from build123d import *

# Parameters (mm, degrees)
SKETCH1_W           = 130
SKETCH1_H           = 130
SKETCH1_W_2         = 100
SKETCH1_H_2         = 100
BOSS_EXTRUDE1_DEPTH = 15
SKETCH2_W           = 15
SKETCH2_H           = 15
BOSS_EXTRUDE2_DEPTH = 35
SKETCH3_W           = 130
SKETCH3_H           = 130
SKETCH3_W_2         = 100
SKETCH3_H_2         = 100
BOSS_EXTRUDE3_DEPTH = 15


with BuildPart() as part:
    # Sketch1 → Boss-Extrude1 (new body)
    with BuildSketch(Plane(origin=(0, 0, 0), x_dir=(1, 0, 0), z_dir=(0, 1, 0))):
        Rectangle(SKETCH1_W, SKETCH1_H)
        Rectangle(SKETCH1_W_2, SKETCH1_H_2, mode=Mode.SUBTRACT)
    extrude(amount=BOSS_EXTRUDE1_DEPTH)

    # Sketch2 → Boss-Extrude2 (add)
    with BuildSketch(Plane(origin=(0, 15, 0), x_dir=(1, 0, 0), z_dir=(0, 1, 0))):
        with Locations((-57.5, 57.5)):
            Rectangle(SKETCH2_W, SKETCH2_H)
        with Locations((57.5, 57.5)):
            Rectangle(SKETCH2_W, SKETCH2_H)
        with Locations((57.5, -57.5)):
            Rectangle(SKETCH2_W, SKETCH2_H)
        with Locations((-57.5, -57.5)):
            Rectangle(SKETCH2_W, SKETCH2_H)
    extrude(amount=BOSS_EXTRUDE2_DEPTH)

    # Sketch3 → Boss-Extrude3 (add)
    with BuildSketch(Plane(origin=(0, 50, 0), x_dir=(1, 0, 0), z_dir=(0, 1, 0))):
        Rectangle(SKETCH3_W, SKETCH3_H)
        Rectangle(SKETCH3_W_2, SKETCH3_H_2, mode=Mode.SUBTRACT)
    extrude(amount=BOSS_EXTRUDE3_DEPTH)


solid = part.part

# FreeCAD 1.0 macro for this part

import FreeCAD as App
import Part
import Sketcher

V = App.Vector
Q = App.Units.Quantity

doc = App.newDocument("Part")
body = doc.addObject("PartDesign::Body", "Body")

# Sketch on XZ plane
sketch1 = doc.addObject("Sketcher::SketchObject", "Sketch")
body.addObject(sketch1)
sketch1.AttachmentSupport = (doc.XZ_Plane, [""])
sketch1.MapMode = "FlatFace"
sketch1.addGeometry([
    Part.LineSegment(V(-65, -65, 0), V(-65, 65, 0)),  # 0
    Part.LineSegment(V(-65, 65, 0), V(65, 65, 0)),  # 1
    Part.LineSegment(V(65, 65, 0), V(65, -65, 0)),  # 2
    Part.LineSegment(V(65, -65, 0), V(-65, -65, 0)),  # 3
    Part.LineSegment(V(50, 50, 0), V(-50, 50, 0)),  # 4
    Part.LineSegment(V(-50, 50, 0), V(-50, -50, 0)),  # 5
    Part.LineSegment(V(-50, -50, 0), V(50, -50, 0)),  # 6
    Part.LineSegment(V(50, -50, 0), V(50, 50, 0)),  # 7
], False)
sketch1.addConstraint([
    Sketcher.Constraint("Coincident", 0, 2, 1, 1),
    Sketcher.Constraint("Coincident", 1, 2, 2, 1),
    Sketcher.Constraint("Coincident", 2, 2, 3, 1),
    Sketcher.Constraint("Coincident", 3, 2, 0, 1),
    Sketcher.Constraint("Coincident", 4, 2, 5, 1),
    Sketcher.Constraint("Coincident", 5, 2, 6, 1),
    Sketcher.Constraint("Coincident", 6, 2, 7, 1),
    Sketcher.Constraint("Coincident", 7, 2, 4, 1),
    Sketcher.Constraint("Vertical", 0),
    Sketcher.Constraint("Horizontal", 1),
    Sketcher.Constraint("Vertical", 2),
    Sketcher.Constraint("Horizontal", 3),
    Sketcher.Constraint("Horizontal", 4),
    Sketcher.Constraint("Vertical", 5),
    Sketcher.Constraint("Horizontal", 6),
    Sketcher.Constraint("Vertical", 7),
    Sketcher.Constraint("Symmetric", 0, 2, 2, 2, -1, 1),
    Sketcher.Constraint("Symmetric", 4, 2, 6, 2, -1, 1),
    Sketcher.Constraint("Equal", 3, 0),
    Sketcher.Constraint("Equal", 6, 5),
    Sketcher.Constraint("DistanceX", 1, 1, 1, 2, Q("130 mm")),
    Sketcher.Constraint("DistanceX", 4, 2, 4, 1, Q("100 mm")),
])
pad1 = doc.addObject("PartDesign::Pad", "Pad")
body.addObject(pad1)
pad1.Profile = sketch1
pad1.Length = 15
pad1.Reversed = True

# Sketch on XZ plane
sketch2 = doc.addObject("Sketcher::SketchObject", "Sketch001")
body.addObject(sketch2)
sketch2.AttachmentSupport = (doc.XZ_Plane, [""])
sketch2.MapMode = "FlatFace"
sketch2.AttachmentOffset = App.Placement(V(0, 0, -15), App.Rotation())
sketch2.addGeometry([
    Part.LineSegment(V(-65, -65, 0), V(-65, -50, 0)),  # 0
    Part.LineSegment(V(-65, -50, 0), V(-50, -50, 0)),  # 1
    Part.LineSegment(V(-50, -50, 0), V(-50, -65, 0)),  # 2
    Part.LineSegment(V(-50, -65, 0), V(-65, -65, 0)),  # 3
    Part.LineSegment(V(50, -65, 0), V(50, -50, 0)),  # 4
    Part.LineSegment(V(50, -50, 0), V(65, -50, 0)),  # 5
    Part.LineSegment(V(65, -50, 0), V(65, -65, 0)),  # 6
    Part.LineSegment(V(65, -65, 0), V(50, -65, 0)),  # 7
    Part.LineSegment(V(50, 50, 0), V(50, 65, 0)),  # 8
    Part.LineSegment(V(50, 65, 0), V(65, 65, 0)),  # 9
    Part.LineSegment(V(65, 65, 0), V(65, 50, 0)),  # 10
    Part.LineSegment(V(65, 50, 0), V(50, 50, 0)),  # 11
    Part.LineSegment(V(-65, 50, 0), V(-65, 65, 0)),  # 12
    Part.LineSegment(V(-65, 65, 0), V(-50, 65, 0)),  # 13
    Part.LineSegment(V(-50, 65, 0), V(-50, 50, 0)),  # 14
    Part.LineSegment(V(-50, 50, 0), V(-65, 50, 0)),  # 15
], False)
sketch2.addConstraint([
    Sketcher.Constraint("Coincident", 0, 2, 1, 1),
    Sketcher.Constraint("Coincident", 1, 2, 2, 1),
    Sketcher.Constraint("Coincident", 2, 2, 3, 1),
    Sketcher.Constraint("Coincident", 3, 2, 0, 1),
    Sketcher.Constraint("Coincident", 4, 2, 5, 1),
    Sketcher.Constraint("Coincident", 5, 2, 6, 1),
    Sketcher.Constraint("Coincident", 6, 2, 7, 1),
    Sketcher.Constraint("Coincident", 7, 2, 4, 1),
    Sketcher.Constraint("Coincident", 8, 2, 9, 1),
    Sketcher.Constraint("Coincident", 9, 2, 10, 1),
    Sketcher.Constraint("Coincident", 10, 2, 11, 1),
    Sketcher.Constraint("Coincident", 11, 2, 8, 1),
    Sketcher.Constraint("Coincident", 12, 2, 13, 1),
    Sketcher.Constraint("Coincident", 13, 2, 14, 1),
    Sketcher.Constraint("Coincident", 14, 2, 15, 1),
    Sketcher.Constraint("Coincident", 15, 2, 12, 1),
    Sketcher.Constraint("Vertical", 0),
    Sketcher.Constraint("Horizontal", 1),
    Sketcher.Constraint("Vertical", 2),
    Sketcher.Constraint("Horizontal", 3),
    Sketcher.Constraint("Vertical", 4),
    Sketcher.Constraint("Horizontal", 5),
    Sketcher.Constraint("Vertical", 6),
    Sketcher.Constraint("Horizontal", 7),
    Sketcher.Constraint("Vertical", 8),
    Sketcher.Constraint("Horizontal", 9),
    Sketcher.Constraint("Vertical", 10),
    Sketcher.Constraint("Horizontal", 11),
    Sketcher.Constraint("Vertical", 12),
    Sketcher.Constraint("Horizontal", 13),
    Sketcher.Constraint("Vertical", 14),
    Sketcher.Constraint("Horizontal", 15),
    Sketcher.Constraint("Symmetric", 2, 2, 8, 2, -1, 1),
    Sketcher.Constraint("Symmetric", 0, 2, 10, 2, -1, 1),
    Sketcher.Constraint("Symmetric", 6, 2, 12, 2, -1, 1),
    Sketcher.Constraint("Symmetric", 4, 2, 14, 2, -1, 1),
    Sketcher.Constraint("Symmetric", 1, 2, 4, 2, -2),
    Sketcher.Constraint("Symmetric", 3, 2, 6, 2, -2),
    Sketcher.Constraint("Equal", 15, 0),
    Sketcher.Constraint("DistanceX", 1, 1, 1, 2, Q("15 mm")),
    Sketcher.Constraint("DistanceX", 0, 2, -1, 1, Q("65 mm")),
    Sketcher.Constraint("DistanceY", 0, 2, -1, 1, Q("50 mm")),
])
pad2 = doc.addObject("PartDesign::Pad", "Pad001")
body.addObject(pad2)
pad2.Profile = sketch2
pad2.Length = 35
pad2.Reversed = True

# Sketch on XZ plane
sketch3 = doc.addObject("Sketcher::SketchObject", "Sketch002")
body.addObject(sketch3)
sketch3.AttachmentSupport = (doc.XZ_Plane, [""])
sketch3.MapMode = "FlatFace"
sketch3.AttachmentOffset = App.Placement(V(0, 0, -50), App.Rotation())
sketch3.addGeometry([
    Part.LineSegment(V(-65, -65, 0), V(-65, 65, 0)),  # 0
    Part.LineSegment(V(-65, 65, 0), V(65, 65, 0)),  # 1
    Part.LineSegment(V(65, 65, 0), V(65, -65, 0)),  # 2
    Part.LineSegment(V(65, -65, 0), V(-65, -65, 0)),  # 3
    Part.LineSegment(V(50, 50, 0), V(-50, 50, 0)),  # 4
    Part.LineSegment(V(-50, 50, 0), V(-50, -50, 0)),  # 5
    Part.LineSegment(V(-50, -50, 0), V(50, -50, 0)),  # 6
    Part.LineSegment(V(50, -50, 0), V(50, 50, 0)),  # 7
], False)
sketch3.addConstraint([
    Sketcher.Constraint("Coincident", 0, 2, 1, 1),
    Sketcher.Constraint("Coincident", 1, 2, 2, 1),
    Sketcher.Constraint("Coincident", 2, 2, 3, 1),
    Sketcher.Constraint("Coincident", 3, 2, 0, 1),
    Sketcher.Constraint("Coincident", 4, 2, 5, 1),
    Sketcher.Constraint("Coincident", 5, 2, 6, 1),
    Sketcher.Constraint("Coincident", 6, 2, 7, 1),
    Sketcher.Constraint("Coincident", 7, 2, 4, 1),
    Sketcher.Constraint("Vertical", 0),
    Sketcher.Constraint("Horizontal", 1),
    Sketcher.Constraint("Vertical", 2),
    Sketcher.Constraint("Horizontal", 3),
    Sketcher.Constraint("Horizontal", 4),
    Sketcher.Constraint("Vertical", 5),
    Sketcher.Constraint("Horizontal", 6),
    Sketcher.Constraint("Vertical", 7),
    Sketcher.Constraint("Symmetric", 0, 2, 2, 2, -1, 1),
    Sketcher.Constraint("Symmetric", 4, 2, 6, 2, -1, 1),
    Sketcher.Constraint("Equal", 3, 0),
    Sketcher.Constraint("Equal", 6, 5),
    Sketcher.Constraint("DistanceX", 1, 1, 1, 2, Q("130 mm")),
    Sketcher.Constraint("DistanceX", 4, 2, 4, 1, Q("100 mm")),
])
pad3 = doc.addObject("PartDesign::Pad", "Pad002")
body.addObject(pad3)
pad3.Profile = sketch3
pad3.Length = 15
pad3.Reversed = True

doc.recompute()
